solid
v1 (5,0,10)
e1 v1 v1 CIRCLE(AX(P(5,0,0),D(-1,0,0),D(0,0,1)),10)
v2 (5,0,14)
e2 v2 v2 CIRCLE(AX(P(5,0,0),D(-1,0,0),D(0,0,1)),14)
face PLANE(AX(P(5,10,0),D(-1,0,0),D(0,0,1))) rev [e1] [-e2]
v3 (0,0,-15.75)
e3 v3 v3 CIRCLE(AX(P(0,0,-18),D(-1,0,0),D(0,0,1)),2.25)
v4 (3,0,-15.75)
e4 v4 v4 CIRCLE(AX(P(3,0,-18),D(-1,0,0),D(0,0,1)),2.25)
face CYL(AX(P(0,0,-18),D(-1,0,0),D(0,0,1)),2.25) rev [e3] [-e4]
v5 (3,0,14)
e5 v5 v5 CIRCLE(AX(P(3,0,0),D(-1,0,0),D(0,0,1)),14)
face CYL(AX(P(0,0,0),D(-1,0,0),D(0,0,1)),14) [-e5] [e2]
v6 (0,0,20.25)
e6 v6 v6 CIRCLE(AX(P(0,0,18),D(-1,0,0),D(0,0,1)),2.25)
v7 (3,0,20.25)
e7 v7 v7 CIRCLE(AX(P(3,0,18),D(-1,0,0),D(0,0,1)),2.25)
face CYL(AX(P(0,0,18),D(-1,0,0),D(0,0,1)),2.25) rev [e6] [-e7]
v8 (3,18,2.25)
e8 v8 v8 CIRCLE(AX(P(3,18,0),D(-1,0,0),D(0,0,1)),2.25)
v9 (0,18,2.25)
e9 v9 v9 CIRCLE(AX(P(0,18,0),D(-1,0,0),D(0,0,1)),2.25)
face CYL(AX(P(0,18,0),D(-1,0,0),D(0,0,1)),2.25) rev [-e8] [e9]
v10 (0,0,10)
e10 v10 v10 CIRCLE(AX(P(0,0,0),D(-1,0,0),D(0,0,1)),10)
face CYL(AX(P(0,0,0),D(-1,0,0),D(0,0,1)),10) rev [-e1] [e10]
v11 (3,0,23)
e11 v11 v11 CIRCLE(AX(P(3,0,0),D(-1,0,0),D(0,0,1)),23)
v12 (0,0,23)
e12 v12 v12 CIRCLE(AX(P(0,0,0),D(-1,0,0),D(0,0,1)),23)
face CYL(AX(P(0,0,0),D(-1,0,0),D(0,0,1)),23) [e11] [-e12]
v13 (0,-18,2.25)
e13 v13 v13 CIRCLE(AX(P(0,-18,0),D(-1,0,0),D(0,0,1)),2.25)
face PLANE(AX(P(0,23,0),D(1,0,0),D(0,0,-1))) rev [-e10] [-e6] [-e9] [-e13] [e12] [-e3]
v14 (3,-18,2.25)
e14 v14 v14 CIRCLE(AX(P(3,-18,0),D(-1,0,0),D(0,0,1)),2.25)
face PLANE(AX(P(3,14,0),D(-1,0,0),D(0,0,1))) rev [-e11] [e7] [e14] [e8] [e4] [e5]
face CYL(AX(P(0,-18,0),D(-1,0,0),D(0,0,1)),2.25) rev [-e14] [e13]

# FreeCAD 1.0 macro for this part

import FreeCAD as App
import Part
import Sketcher
from FreeCAD import Vector
Q = App.Units.Quantity


def add_polygon(sketch, points):
    """Adds a closed chain of lines whose ends are joined by coincident constraints."""
    first, n = sketch.GeometryCount, len(points)
    for a, b in zip(points, points[1:] + points[:1]):
        sketch.addGeometry(Part.LineSegment(App.Vector(*a, 0), App.Vector(*b, 0)), False)
    for i in range(n):
        sketch.addConstraint(Sketcher.Constraint("Coincident", first + i, 2, first + (i + 1) % n, 1))

doc = App.newDocument("Part")
body = doc.addObject("PartDesign::Body", "Body")

# Sketch on XY plane
sketch1 = doc.addObject("Sketcher::SketchObject", "Sketch")
body.addObject(sketch1)
sketch1.AttachmentSupport = (doc.XY_Plane, [""])
sketch1.MapMode = "FlatFace"
add_polygon(sketch1, [(0, 10), (5, 10), (5, 14), (3, 14), (3, 23), (0, 23)])  # lines 0-5
sketch1.addConstraint(Sketcher.Constraint("Horizontal", 0))
sketch1.addConstraint(Sketcher.Constraint("Vertical", 1))
sketch1.addConstraint(Sketcher.Constraint("Horizontal", 2))
sketch1.addConstraint(Sketcher.Constraint("Vertical", 3))
sketch1.addConstraint(Sketcher.Constraint("Horizontal", 4))
sketch1.addConstraint(Sketcher.Constraint("Vertical", 5))
sketch1.addConstraint(Sketcher.Constraint("PointOnObject", 4, 2, -2))
sketch1.addConstraint(Sketcher.Constraint("DistanceX", 0, 1, 0, 2, Q("5 mm")))
sketch1.addConstraint(Sketcher.Constraint("DistanceX", 2, 2, 2, 1, Q("2 mm")))
sketch1.addConstraint(Sketcher.Constraint("DistanceY", 1, 1, 1, 2, Q("4 mm")))
sketch1.addConstraint(Sketcher.Constraint("DistanceY", 3, 1, 3, 2, Q("9 mm")))
sketch1.addConstraint(Sketcher.Constraint("DistanceY", -1, 1, 0, 2, Q("10 mm")))
revolution = doc.addObject("PartDesign::Revolution", "Revolution")
body.addObject(revolution)
revolution.Profile = sketch1
revolution.ReferenceAxis = (sketch1, ["H_Axis"])
revolution.Angle = 360

# Sketch on YZ plane
sketch2 = doc.addObject("Sketcher::SketchObject", "Sketch001")
body.addObject(sketch2)
sketch2.AttachmentSupport = (doc.YZ_Plane, [""])
sketch2.MapMode = "FlatFace"
sketch2.addGeometry(Part.Circle(Vector(18, 0, 0), Vector(0, 0, 1), 2.2), False)
sketch2.addConstraint(Sketcher.Constraint("PointOnObject", 0, 3, -1))
sketch2.addConstraint(Sketcher.Constraint("Diameter", 0, Q("4.5 mm")))
sketch2.addConstraint(Sketcher.Constraint("DistanceX", -1, 1, 0, 3, Q("18 mm")))
doc.recompute()
hole = doc.addObject("PartDesign::Hole", "Hole")
body.addObject(hole)
hole.Profile = sketch2
hole.ThreadType = "None"
hole.Diameter = 4.5
hole.DepthType = "Dimension"
hole.Depth = 3
hole.DrillPoint = "Flat"
hole.Reversed = True
doc.recompute()

polarpattern = doc.addObject("PartDesign::PolarPattern", "PolarPattern")
body.addObject(polarpattern)
polarpattern.Originals = [hole]
polarpattern.Axis = (doc.X_Axis, [""])
polarpattern.Angle = 360
polarpattern.Occurrences = 4
body.Tip = polarpattern

doc.recompute()
